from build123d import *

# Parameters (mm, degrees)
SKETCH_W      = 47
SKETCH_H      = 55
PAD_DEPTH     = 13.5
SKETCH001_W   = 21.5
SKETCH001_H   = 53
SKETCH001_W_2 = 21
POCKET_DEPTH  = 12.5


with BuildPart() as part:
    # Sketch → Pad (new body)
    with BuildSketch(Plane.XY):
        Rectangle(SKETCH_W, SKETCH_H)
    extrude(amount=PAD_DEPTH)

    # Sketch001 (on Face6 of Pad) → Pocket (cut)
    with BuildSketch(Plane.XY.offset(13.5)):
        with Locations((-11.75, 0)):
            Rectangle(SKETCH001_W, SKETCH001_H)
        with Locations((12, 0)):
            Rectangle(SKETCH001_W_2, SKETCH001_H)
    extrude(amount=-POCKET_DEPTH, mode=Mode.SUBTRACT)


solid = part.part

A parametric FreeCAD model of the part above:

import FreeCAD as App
import Part
import Sketcher

V = App.Vector


def add_polygon(sketch, points):
    """Adds a closed chain of lines whose ends are joined by coincident constraints."""
    first, n = sketch.GeometryCount, len(points)
    for a, b in zip(points, points[1:] + points[:1]):
        sketch.addGeometry(Part.LineSegment(App.Vector(*a, 0), App.Vector(*b, 0)), False)
    for i in range(n):
        sketch.addConstraint(Sketcher.Constraint("Coincident", first + i, 2, first + (i + 1) % n, 1))

doc = App.newDocument("Part")
body = doc.addObject("PartDesign::Body", "Body")

# Sketch on XY plane
sketch1 = body.newObject("Sketcher::SketchObject", "Sketch")
sketch1.AttachmentSupport = (doc.getObject("XY_Plane"), [""])
sketch1.MapMode = "FlatFace"
add_polygon(sketch1, [(-24, 28), (-24, -28), (24, -28), (24, 28)])  # lines 0-3
sketch1.addConstraint([
    Sketcher.Constraint("Vertical", 0),
    Sketcher.Constraint("Horizontal", 1),
    Sketcher.Constraint("Vertical", 2),
    Sketcher.Constraint("Horizontal", 3),
    Sketcher.Constraint("Symmetric", 0, 2, 2, 2, -1, 1),
    Sketcher.Constraint("DistanceX", 1, 1, 1, 2, 47.0),
    Sketcher.Constraint("DistanceY", 0, 2, 0, 1, 55.0),
])
pad1 = body.newObject("PartDesign::Pad", "Pad")
pad1.Profile = sketch1
pad1.Length = 13.5

# Sketch on XY plane
sketch2 = body.newObject("Sketcher::SketchObject", "Sketch001")
sketch2.AttachmentSupport = (doc.getObject("XY_Plane"), [""])
sketch2.MapMode = "FlatFace"
sketch2.AttachmentOffset = App.Placement(V(0, 0, 13.5), App.Rotation())
add_polygon(sketch2, [(-22, 26), (-22, -26), (-1, -26), (-1, 26)])  # lines 0-3
add_polygon(sketch2, [(2, 26), (2, -26), (22, -26), (22, 26)])  # lines 4-7
sketch2.addConstraint([
    Sketcher.Constraint("Vertical", 0),
    Sketcher.Constraint("Horizontal", 1),
    Sketcher.Constraint("Vertical", 2),
    Sketcher.Constraint("Horizontal", 3),
    Sketcher.Constraint("Vertical", 4),
    Sketcher.Constraint("Horizontal", 5),
    Sketcher.Constraint("Vertical", 6),
    Sketcher.Constraint("Horizontal", 7),
    Sketcher.Constraint("Symmetric", 3, 2, 5, 2, -1, 1),
    Sketcher.Constraint("Horizontal", 1, 2, 4, 2),
    Sketcher.Constraint("Horizontal", 3, 2, 6, 2),
    Sketcher.Constraint("DistanceX", 5, 1, 5, 2, 21.0),
    Sketcher.Constraint("DistanceY", 0, 2, 0, 1, 53.0),
    Sketcher.Constraint("DistanceX", 1, 1, 1, 2, 21.5),
    Sketcher.Constraint("DistanceX", 1, 2, -1, 1, 1.0),
])
pocket1 = body.newObject("PartDesign::Pocket", "Pocket")
pocket1.Profile = sketch2
pocket1.Length = 12.5

doc.recompute()
